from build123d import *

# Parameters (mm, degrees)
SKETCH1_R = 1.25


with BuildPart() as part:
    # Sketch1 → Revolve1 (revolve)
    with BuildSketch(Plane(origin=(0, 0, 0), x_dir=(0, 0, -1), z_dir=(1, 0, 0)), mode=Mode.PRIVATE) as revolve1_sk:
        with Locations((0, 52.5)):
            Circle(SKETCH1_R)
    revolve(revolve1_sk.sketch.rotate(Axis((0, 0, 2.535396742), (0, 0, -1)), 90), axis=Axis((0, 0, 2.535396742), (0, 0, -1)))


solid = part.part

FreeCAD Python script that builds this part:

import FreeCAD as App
import Part
import Sketcher
from FreeCAD import Vector
Q = App.Units.Quantity

doc = App.newDocument("Part")
body = doc.addObject("PartDesign::Body", "Body")

sketch1 = doc.addObject("Sketcher::SketchObject", "Sketch")
body.addObject(sketch1)
sketch1.AttachmentSupport = (doc.YZ_Plane, [""])
sketch1.MapMode = "FlatFace"
sketch1.addGeometry(Part.Circle(Vector(52.5, 0, 0), Vector(0, 0, 1), 1.2), False)
sketch1.addConstraint(Sketcher.Constraint("PointOnObject", 0, 3, -1))
sketch1.addConstraint(Sketcher.Constraint("Diameter", 0, Q("2.5 mm")))
sketch1.addConstraint(Sketcher.Constraint("DistanceX", -1, 1, 0, 3, Q("52.5 mm")))
revolution = doc.addObject("PartDesign::Revolution", "Revolution")
body.addObject(revolution)
revolution.Profile = sketch1
revolution.ReferenceAxis = (sketch1, ["V_Axis"])
revolution.Angle = 360

doc.recompute()
